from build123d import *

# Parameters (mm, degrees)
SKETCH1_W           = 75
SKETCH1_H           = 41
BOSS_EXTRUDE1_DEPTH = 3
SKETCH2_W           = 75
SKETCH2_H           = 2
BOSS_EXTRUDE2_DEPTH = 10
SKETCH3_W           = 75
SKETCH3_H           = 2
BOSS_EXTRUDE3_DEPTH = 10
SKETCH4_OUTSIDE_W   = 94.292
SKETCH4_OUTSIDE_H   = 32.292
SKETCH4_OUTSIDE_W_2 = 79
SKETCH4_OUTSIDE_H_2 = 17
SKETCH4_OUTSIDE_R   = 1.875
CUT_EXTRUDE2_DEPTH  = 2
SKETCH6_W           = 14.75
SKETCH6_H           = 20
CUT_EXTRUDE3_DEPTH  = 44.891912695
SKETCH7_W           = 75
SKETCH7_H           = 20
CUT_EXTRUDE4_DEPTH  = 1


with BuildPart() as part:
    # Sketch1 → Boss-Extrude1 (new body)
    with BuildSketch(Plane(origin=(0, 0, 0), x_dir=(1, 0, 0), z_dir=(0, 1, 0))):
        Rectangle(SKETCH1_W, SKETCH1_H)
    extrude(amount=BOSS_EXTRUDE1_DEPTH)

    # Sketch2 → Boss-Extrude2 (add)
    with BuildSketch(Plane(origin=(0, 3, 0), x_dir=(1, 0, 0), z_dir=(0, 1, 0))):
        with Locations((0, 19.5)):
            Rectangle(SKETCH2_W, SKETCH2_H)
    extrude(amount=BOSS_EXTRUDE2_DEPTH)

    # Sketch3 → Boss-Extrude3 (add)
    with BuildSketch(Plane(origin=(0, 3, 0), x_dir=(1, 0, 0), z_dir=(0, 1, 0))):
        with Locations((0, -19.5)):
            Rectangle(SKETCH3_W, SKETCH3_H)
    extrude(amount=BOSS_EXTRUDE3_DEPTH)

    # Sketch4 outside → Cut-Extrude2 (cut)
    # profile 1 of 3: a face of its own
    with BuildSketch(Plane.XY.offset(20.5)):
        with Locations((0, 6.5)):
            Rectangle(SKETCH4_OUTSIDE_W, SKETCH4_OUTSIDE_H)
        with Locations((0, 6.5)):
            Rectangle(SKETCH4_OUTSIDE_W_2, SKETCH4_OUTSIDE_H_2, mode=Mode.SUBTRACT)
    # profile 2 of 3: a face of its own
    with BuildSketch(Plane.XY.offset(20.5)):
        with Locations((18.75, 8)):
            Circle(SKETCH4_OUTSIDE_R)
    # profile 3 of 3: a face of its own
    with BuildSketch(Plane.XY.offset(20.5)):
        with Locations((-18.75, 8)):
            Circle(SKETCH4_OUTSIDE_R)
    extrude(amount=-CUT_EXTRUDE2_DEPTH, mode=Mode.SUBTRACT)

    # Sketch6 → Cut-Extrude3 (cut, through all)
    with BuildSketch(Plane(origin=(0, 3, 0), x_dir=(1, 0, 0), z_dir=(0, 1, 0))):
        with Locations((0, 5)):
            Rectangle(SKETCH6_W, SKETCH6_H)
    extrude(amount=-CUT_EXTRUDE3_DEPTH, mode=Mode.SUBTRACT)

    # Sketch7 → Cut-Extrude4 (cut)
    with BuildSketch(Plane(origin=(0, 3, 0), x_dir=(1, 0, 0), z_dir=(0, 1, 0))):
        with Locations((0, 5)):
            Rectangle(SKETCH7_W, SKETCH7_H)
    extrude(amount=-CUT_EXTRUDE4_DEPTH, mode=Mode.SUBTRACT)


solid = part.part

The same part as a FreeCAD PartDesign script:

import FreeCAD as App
import Part
import Sketcher
Q = App.Units.Quantity

doc = App.newDocument("Part")
body = doc.addObject("PartDesign::Body", "Body")

sketch1 = doc.addObject("Sketcher::SketchObject", "Sketch")
body.addObject(sketch1)
sketch1.AttachmentSupport = (doc.XZ_Plane, [""])
sketch1.MapMode = "FlatFace"
sketch1.addGeometry(Part.LineSegment(App.Vector(-38, -20, 0), App.Vector(-38, 20, 0)), False)
sketch1.addGeometry(Part.LineSegment(App.Vector(-38, 20, 0), App.Vector(38, 20, 0)), False)
sketch1.addGeometry(Part.LineSegment(App.Vector(38, 20, 0), App.Vector(38, -20, 0)), False)
sketch1.addGeometry(Part.LineSegment(App.Vector(38, -20, 0), App.Vector(-38, -20, 0)), False)
sketch1.addConstraint(Sketcher.Constraint("Coincident", 0, 2, 1, 1))
sketch1.addConstraint(Sketcher.Constraint("Coincident", 1, 2, 2, 1))
sketch1.addConstraint(Sketcher.Constraint("Coincident", 2, 2, 3, 1))
sketch1.addConstraint(Sketcher.Constraint("Coincident", 3, 2, 0, 1))
sketch1.addConstraint(Sketcher.Constraint("Vertical", 0))
sketch1.addConstraint(Sketcher.Constraint("Horizontal", 1))
sketch1.addConstraint(Sketcher.Constraint("Vertical", 2))
sketch1.addConstraint(Sketcher.Constraint("Horizontal", 3))
sketch1.addConstraint(Sketcher.Constraint("Symmetric", 0, 2, 2, 2, -1, 1))
sketch1.addConstraint(Sketcher.Constraint("DistanceX", 1, 1, 1, 2, Q("75 mm")))
sketch1.addConstraint(Sketcher.Constraint("DistanceY", 0, 1, 0, 2, Q("41 mm")))
pad1 = doc.addObject("PartDesign::Pad", "Pad")
body.addObject(pad1)
pad1.Profile = sketch1
pad1.Length = 3
pad1.Reversed = True

sketch2 = doc.addObject("Sketcher::SketchObject", "Sketch001")
body.addObject(sketch2)
sketch2.AttachmentSupport = (doc.XZ_Plane, [""])
sketch2.MapMode = "FlatFace"
sketch2.AttachmentOffset = App.Placement(App.Vector(0, 0, -3), App.Rotation())
sketch2.addGeometry(Part.LineSegment(App.Vector(-37.5, -20.5, 0), App.Vector(-37.5, -18.5, 0)), False)
sketch2.addGeometry(Part.LineSegment(App.Vector(-37.5, -18.5, 0), App.Vector(37.5, -18.5, 0)), False)
sketch2.addGeometry(Part.LineSegment(App.Vector(37.5, -18.5, 0), App.Vector(37.5, -20.5, 0)), False)
sketch2.addGeometry(Part.LineSegment(App.Vector(37.5, -20.5, 0), App.Vector(-37.5, -20.5, 0)), False)
sketch2.addConstraint(Sketcher.Constraint("Coincident", 0, 2, 1, 1))
sketch2.addConstraint(Sketcher.Constraint("Coincident", 1, 2, 2, 1))
sketch2.addConstraint(Sketcher.Constraint("Coincident", 2, 2, 3, 1))
sketch2.addConstraint(Sketcher.Constraint("Coincident", 3, 2, 0, 1))
sketch2.addConstraint(Sketcher.Constraint("Vertical", 0))
sketch2.addConstraint(Sketcher.Constraint("Horizontal", 1))
sketch2.addConstraint(Sketcher.Constraint("Vertical", 2))
sketch2.addConstraint(Sketcher.Constraint("Horizontal", 3))
sketch2.addConstraint(Sketcher.Constraint("DistanceX", 1, 1, 1, 2, Q("75 mm")))
sketch2.addConstraint(Sketcher.Constraint("DistanceY", 0, 1, 0, 2, Q("2 mm")))
sketch2.addConstraint(Sketcher.Constraint("DistanceX", 0, 2, -1, 1, Q("37.5 mm")))
sketch2.addConstraint(Sketcher.Constraint("DistanceY", 0, 2, -1, 1, Q("18.5 mm")))
pad2 = doc.addObject("PartDesign::Pad", "Pad001")
body.addObject(pad2)
pad2.Profile = sketch2
pad2.Length = 10
pad2.Reversed = True

sketch3 = doc.addObject("Sketcher::SketchObject", "Sketch002")
body.addObject(sketch3)
sketch3.AttachmentSupport = (doc.XZ_Plane, [""])
sketch3.MapMode = "FlatFace"
sketch3.AttachmentOffset = App.Placement(App.Vector(0, 0, -3), App.Rotation())
sketch3.addGeometry(Part.LineSegment(App.Vector(-37.5, 18.5, 0), App.Vector(-37.5, 20.5, 0)), False)
sketch3.addGeometry(Part.LineSegment(App.Vector(-37.5, 20.5, 0), App.Vector(37.5, 20.5, 0)), False)
sketch3.addGeometry(Part.LineSegment(App.Vector(37.5, 20.5, 0), App.Vector(37.5, 18.5, 0)), False)
sketch3.addGeometry(Part.LineSegment(App.Vector(37.5, 18.5, 0), App.Vector(-37.5, 18.5, 0)), False)
sketch3.addConstraint(Sketcher.Constraint("Coincident", 0, 2, 1, 1))
sketch3.addConstraint(Sketcher.Constraint("Coincident", 1, 2, 2, 1))
sketch3.addConstraint(Sketcher.Constraint("Coincident", 2, 2, 3, 1))
sketch3.addConstraint(Sketcher.Constraint("Coincident", 3, 2, 0, 1))
sketch3.addConstraint(Sketcher.Constraint("Vertical", 0))
sketch3.addConstraint(Sketcher.Constraint("Horizontal", 1))
sketch3.addConstraint(Sketcher.Constraint("Vertical", 2))
sketch3.addConstraint(Sketcher.Constraint("Horizontal", 3))
sketch3.addConstraint(Sketcher.Constraint("DistanceX", 1, 1, 1, 2, Q("75 mm")))
sketch3.addConstraint(Sketcher.Constraint("DistanceY", 0, 1, 0, 2, Q("2 mm")))
sketch3.addConstraint(Sketcher.Constraint("DistanceX", 0, 2, -1, 1, Q("37.5 mm")))
sketch3.addConstraint(Sketcher.Constraint("DistanceY", -1, 1, 0, 2, Q("20.5 mm")))
pad3 = doc.addObject("PartDesign::Pad", "Pad002")
body.addObject(pad3)
pad3.Profile = sketch3
pad3.Length = 10
pad3.Reversed = True

sketch4 = doc.addObject("Sketcher::SketchObject", "Sketch003")
body.addObject(sketch4)
sketch4.AttachmentSupport = (doc.XY_Plane, [""])
sketch4.MapMode = "FlatFace"
sketch4.AttachmentOffset = App.Placement(App.Vector(0, 0, 20.5), App.Rotation())
sketch4.addGeometry(Part.LineSegment(App.Vector(-47.1, 22.6, 0), App.Vector(-47.1, -9.6, 0)), False)
sketch4.addGeometry(Part.LineSegment(App.Vector(-47.1, -9.6, 0), App.Vector(47.1, -9.6, 0)), False)
sketch4.addGeometry(Part.LineSegment(App.Vector(47.1, -9.6, 0), App.Vector(47.1, 22.6, 0)), False)
sketch4.addGeometry(Part.LineSegment(App.Vector(47.1, 22.6, 0), App.Vector(-47.1, 22.6, 0)), False)
sketch4.addGeometry(Part.LineSegment(App.Vector(39.5, -2, 0), App.Vector(-39.5, -2, 0)), False)
sketch4.addGeometry(Part.LineSegment(App.Vector(-39.5, -2, 0), App.Vector(-39.5, 15, 0)), False)
sketch4.addGeometry(Part.LineSegment(App.Vector(-39.5, 15, 0), App.Vector(39.5, 15, 0)), False)
sketch4.addGeometry(Part.LineSegment(App.Vector(39.5, 15, 0), App.Vector(39.5, -2, 0)), False)
sketch4.addGeometry(Part.Circle(App.Vector(18.8, 8, 0), App.Vector(0, 0, 1), 1.9), False)
sketch4.addGeometry(Part.Circle(App.Vector(-18.8, 8, 0), App.Vector(0, 0, 1), 1.9), False)
sketch4.addConstraint(Sketcher.Constraint("Coincident", 0, 2, 1, 1))
sketch4.addConstraint(Sketcher.Constraint("Coincident", 1, 2, 2, 1))
sketch4.addConstraint(Sketcher.Constraint("Coincident", 2, 2, 3, 1))
sketch4.addConstraint(Sketcher.Constraint("Coincident", 3, 2, 0, 1))
sketch4.addConstraint(Sketcher.Constraint("Coincident", 4, 2, 5, 1))
sketch4.addConstraint(Sketcher.Constraint("Coincident", 5, 2, 6, 1))
sketch4.addConstraint(Sketcher.Constraint("Coincident", 6, 2, 7, 1))
sketch4.addConstraint(Sketcher.Constraint("Coincident", 7, 2, 4, 1))
sketch4.addConstraint(Sketcher.Constraint("Vertical", 0))
sketch4.addConstraint(Sketcher.Constraint("Horizontal", 1))
sketch4.addConstraint(Sketcher.Constraint("Vertical", 2))
sketch4.addConstraint(Sketcher.Constraint("Horizontal", 3))
sketch4.addConstraint(Sketcher.Constraint("Horizontal", 4))
sketch4.addConstraint(Sketcher.Constraint("Vertical", 5))
sketch4.addConstraint(Sketcher.Constraint("Horizontal", 6))
sketch4.addConstraint(Sketcher.Constraint("Vertical", 7))
sketch4.addConstraint(Sketcher.Constraint("Equal", 8, 9))
sketch4.addConstraint(Sketcher.Constraint("Symmetric", 8, 3, 9, 3, -2))
sketch4.addConstraint(Sketcher.Constraint("Diameter", 8, Q("3.75 mm")))
sketch4.addConstraint(Sketcher.Constraint("DistanceX", 4, 2, 4, 1, Q("79 mm")))
sketch4.addConstraint(Sketcher.Constraint("DistanceY", 5, 1, 5, 2, Q("17 mm")))
sketch4.addConstraint(Sketcher.Constraint("DistanceY", -1, 1, 8, 3, Q("8 mm")))
sketch4.addConstraint(Sketcher.Constraint("DistanceY", 4, 2, -1, 1, Q("2 mm")))
sketch4.addConstraint(Sketcher.Constraint("DistanceX", 4, 2, -1, 1, Q("39.5 mm")))
sketch4.addConstraint(Sketcher.Constraint("DistanceX", 9, 3, 8, 3, Q("37.5 mm")))
sketch4.addConstraint(Sketcher.Constraint("DistanceX", 1, 1, 1, 2, Q("94.292 mm")))
sketch4.addConstraint(Sketcher.Constraint("DistanceY", 0, 2, 0, 1, Q("32.292 mm")))
sketch4.addConstraint(Sketcher.Constraint("DistanceX", 0, 2, -1, 1, Q("47.146 mm")))
sketch4.addConstraint(Sketcher.Constraint("DistanceY", 0, 2, -1, 1, Q("9.646 mm")))
pocket1 = doc.addObject("PartDesign::Pocket", "Pocket")
body.addObject(pocket1)
pocket1.Profile = sketch4
pocket1.Length = 2

sketch5 = doc.addObject("Sketcher::SketchObject", "Sketch004")
body.addObject(sketch5)
sketch5.AttachmentSupport = (doc.XZ_Plane, [""])
sketch5.MapMode = "FlatFace"
sketch5.AttachmentOffset = App.Placement(App.Vector(0, 0, -3), App.Rotation())
sketch5.addGeometry(Part.LineSegment(App.Vector(-7, -15, 0), App.Vector(-7, 5, 0)), False)
sketch5.addGeometry(Part.LineSegment(App.Vector(-7, 5, 0), App.Vector(7, 5, 0)), False)
sketch5.addGeometry(Part.LineSegment(App.Vector(7, 5, 0), App.Vector(7, -15, 0)), False)
sketch5.addGeometry(Part.LineSegment(App.Vector(7, -15, 0), App.Vector(-7, -15, 0)), False)
sketch5.addConstraint(Sketcher.Constraint("Coincident", 0, 2, 1, 1))
sketch5.addConstraint(Sketcher.Constraint("Coincident", 1, 2, 2, 1))
sketch5.addConstraint(Sketcher.Constraint("Coincident", 2, 2, 3, 1))
sketch5.addConstraint(Sketcher.Constraint("Coincident", 3, 2, 0, 1))
sketch5.addConstraint(Sketcher.Constraint("Vertical", 0))
sketch5.addConstraint(Sketcher.Constraint("Horizontal", 1))
sketch5.addConstraint(Sketcher.Constraint("Vertical", 2))
sketch5.addConstraint(Sketcher.Constraint("Horizontal", 3))
sketch5.addConstraint(Sketcher.Constraint("DistanceY", 0, 1, 0, 2, Q("20 mm")))
sketch5.addConstraint(Sketcher.Constraint("DistanceY", -1, 1, 0, 2, Q("5 mm")))
sketch5.addConstraint(Sketcher.Constraint("DistanceX", 1, 1, 1, 2, Q("14.75 mm")))
sketch5.addConstraint(Sketcher.Constraint("DistanceX", 0, 2, -1, 1, Q("7.375 mm")))
pocket2 = doc.addObject("PartDesign::Pocket", "Pocket001")
body.addObject(pocket2)
pocket2.Profile = sketch5
pocket2.Type = "ThroughAll"
pocket2.Reversed = True

sketch6 = doc.addObject("Sketcher::SketchObject", "Sketch005")
body.addObject(sketch6)
sketch6.AttachmentSupport = (doc.XZ_Plane, [""])
sketch6.MapMode = "FlatFace"
sketch6.AttachmentOffset = App.Placement(App.Vector(0, 0, -3), App.Rotation())
sketch6.addGeometry(Part.LineSegment(App.Vector(-38, -15, 0), App.Vector(-38, 5, 0)), False)
sketch6.addGeometry(Part.LineSegment(App.Vector(-38, 5, 0), App.Vector(38, 5, 0)), False)
sketch6.addGeometry(Part.LineSegment(App.Vector(38, 5, 0), App.Vector(38, -15, 0)), False)
sketch6.addGeometry(Part.LineSegment(App.Vector(38, -15, 0), App.Vector(-38, -15, 0)), False)
sketch6.addConstraint(Sketcher.Constraint("Coincident", 0, 2, 1, 1))
sketch6.addConstraint(Sketcher.Constraint("Coincident", 1, 2, 2, 1))
sketch6.addConstraint(Sketcher.Constraint("Coincident", 2, 2, 3, 1))
sketch6.addConstraint(Sketcher.Constraint("Coincident", 3, 2, 0, 1))
sketch6.addConstraint(Sketcher.Constraint("Vertical", 0))
sketch6.addConstraint(Sketcher.Constraint("Horizontal", 1))
sketch6.addConstraint(Sketcher.Constraint("Vertical", 2))
sketch6.addConstraint(Sketcher.Constraint("Horizontal", 3))
sketch6.addConstraint(Sketcher.Constraint("DistanceX", 1, 1, 1, 2, Q("75 mm")))
sketch6.addConstraint(Sketcher.Constraint("DistanceY", 0, 1, 0, 2, Q("20 mm")))
sketch6.addConstraint(Sketcher.Constraint("DistanceY", -1, 1, 0, 2, Q("5 mm")))
sketch6.addConstraint(Sketcher.Constraint("DistanceX", 0, 2, -1, 1, Q("37.5 mm")))
pocket3 = doc.addObject("PartDesign::Pocket", "Pocket002")
body.addObject(pocket3)
pocket3.Profile = sketch6
pocket3.Length = 1
pocket3.Reversed = True

doc.recompute()
